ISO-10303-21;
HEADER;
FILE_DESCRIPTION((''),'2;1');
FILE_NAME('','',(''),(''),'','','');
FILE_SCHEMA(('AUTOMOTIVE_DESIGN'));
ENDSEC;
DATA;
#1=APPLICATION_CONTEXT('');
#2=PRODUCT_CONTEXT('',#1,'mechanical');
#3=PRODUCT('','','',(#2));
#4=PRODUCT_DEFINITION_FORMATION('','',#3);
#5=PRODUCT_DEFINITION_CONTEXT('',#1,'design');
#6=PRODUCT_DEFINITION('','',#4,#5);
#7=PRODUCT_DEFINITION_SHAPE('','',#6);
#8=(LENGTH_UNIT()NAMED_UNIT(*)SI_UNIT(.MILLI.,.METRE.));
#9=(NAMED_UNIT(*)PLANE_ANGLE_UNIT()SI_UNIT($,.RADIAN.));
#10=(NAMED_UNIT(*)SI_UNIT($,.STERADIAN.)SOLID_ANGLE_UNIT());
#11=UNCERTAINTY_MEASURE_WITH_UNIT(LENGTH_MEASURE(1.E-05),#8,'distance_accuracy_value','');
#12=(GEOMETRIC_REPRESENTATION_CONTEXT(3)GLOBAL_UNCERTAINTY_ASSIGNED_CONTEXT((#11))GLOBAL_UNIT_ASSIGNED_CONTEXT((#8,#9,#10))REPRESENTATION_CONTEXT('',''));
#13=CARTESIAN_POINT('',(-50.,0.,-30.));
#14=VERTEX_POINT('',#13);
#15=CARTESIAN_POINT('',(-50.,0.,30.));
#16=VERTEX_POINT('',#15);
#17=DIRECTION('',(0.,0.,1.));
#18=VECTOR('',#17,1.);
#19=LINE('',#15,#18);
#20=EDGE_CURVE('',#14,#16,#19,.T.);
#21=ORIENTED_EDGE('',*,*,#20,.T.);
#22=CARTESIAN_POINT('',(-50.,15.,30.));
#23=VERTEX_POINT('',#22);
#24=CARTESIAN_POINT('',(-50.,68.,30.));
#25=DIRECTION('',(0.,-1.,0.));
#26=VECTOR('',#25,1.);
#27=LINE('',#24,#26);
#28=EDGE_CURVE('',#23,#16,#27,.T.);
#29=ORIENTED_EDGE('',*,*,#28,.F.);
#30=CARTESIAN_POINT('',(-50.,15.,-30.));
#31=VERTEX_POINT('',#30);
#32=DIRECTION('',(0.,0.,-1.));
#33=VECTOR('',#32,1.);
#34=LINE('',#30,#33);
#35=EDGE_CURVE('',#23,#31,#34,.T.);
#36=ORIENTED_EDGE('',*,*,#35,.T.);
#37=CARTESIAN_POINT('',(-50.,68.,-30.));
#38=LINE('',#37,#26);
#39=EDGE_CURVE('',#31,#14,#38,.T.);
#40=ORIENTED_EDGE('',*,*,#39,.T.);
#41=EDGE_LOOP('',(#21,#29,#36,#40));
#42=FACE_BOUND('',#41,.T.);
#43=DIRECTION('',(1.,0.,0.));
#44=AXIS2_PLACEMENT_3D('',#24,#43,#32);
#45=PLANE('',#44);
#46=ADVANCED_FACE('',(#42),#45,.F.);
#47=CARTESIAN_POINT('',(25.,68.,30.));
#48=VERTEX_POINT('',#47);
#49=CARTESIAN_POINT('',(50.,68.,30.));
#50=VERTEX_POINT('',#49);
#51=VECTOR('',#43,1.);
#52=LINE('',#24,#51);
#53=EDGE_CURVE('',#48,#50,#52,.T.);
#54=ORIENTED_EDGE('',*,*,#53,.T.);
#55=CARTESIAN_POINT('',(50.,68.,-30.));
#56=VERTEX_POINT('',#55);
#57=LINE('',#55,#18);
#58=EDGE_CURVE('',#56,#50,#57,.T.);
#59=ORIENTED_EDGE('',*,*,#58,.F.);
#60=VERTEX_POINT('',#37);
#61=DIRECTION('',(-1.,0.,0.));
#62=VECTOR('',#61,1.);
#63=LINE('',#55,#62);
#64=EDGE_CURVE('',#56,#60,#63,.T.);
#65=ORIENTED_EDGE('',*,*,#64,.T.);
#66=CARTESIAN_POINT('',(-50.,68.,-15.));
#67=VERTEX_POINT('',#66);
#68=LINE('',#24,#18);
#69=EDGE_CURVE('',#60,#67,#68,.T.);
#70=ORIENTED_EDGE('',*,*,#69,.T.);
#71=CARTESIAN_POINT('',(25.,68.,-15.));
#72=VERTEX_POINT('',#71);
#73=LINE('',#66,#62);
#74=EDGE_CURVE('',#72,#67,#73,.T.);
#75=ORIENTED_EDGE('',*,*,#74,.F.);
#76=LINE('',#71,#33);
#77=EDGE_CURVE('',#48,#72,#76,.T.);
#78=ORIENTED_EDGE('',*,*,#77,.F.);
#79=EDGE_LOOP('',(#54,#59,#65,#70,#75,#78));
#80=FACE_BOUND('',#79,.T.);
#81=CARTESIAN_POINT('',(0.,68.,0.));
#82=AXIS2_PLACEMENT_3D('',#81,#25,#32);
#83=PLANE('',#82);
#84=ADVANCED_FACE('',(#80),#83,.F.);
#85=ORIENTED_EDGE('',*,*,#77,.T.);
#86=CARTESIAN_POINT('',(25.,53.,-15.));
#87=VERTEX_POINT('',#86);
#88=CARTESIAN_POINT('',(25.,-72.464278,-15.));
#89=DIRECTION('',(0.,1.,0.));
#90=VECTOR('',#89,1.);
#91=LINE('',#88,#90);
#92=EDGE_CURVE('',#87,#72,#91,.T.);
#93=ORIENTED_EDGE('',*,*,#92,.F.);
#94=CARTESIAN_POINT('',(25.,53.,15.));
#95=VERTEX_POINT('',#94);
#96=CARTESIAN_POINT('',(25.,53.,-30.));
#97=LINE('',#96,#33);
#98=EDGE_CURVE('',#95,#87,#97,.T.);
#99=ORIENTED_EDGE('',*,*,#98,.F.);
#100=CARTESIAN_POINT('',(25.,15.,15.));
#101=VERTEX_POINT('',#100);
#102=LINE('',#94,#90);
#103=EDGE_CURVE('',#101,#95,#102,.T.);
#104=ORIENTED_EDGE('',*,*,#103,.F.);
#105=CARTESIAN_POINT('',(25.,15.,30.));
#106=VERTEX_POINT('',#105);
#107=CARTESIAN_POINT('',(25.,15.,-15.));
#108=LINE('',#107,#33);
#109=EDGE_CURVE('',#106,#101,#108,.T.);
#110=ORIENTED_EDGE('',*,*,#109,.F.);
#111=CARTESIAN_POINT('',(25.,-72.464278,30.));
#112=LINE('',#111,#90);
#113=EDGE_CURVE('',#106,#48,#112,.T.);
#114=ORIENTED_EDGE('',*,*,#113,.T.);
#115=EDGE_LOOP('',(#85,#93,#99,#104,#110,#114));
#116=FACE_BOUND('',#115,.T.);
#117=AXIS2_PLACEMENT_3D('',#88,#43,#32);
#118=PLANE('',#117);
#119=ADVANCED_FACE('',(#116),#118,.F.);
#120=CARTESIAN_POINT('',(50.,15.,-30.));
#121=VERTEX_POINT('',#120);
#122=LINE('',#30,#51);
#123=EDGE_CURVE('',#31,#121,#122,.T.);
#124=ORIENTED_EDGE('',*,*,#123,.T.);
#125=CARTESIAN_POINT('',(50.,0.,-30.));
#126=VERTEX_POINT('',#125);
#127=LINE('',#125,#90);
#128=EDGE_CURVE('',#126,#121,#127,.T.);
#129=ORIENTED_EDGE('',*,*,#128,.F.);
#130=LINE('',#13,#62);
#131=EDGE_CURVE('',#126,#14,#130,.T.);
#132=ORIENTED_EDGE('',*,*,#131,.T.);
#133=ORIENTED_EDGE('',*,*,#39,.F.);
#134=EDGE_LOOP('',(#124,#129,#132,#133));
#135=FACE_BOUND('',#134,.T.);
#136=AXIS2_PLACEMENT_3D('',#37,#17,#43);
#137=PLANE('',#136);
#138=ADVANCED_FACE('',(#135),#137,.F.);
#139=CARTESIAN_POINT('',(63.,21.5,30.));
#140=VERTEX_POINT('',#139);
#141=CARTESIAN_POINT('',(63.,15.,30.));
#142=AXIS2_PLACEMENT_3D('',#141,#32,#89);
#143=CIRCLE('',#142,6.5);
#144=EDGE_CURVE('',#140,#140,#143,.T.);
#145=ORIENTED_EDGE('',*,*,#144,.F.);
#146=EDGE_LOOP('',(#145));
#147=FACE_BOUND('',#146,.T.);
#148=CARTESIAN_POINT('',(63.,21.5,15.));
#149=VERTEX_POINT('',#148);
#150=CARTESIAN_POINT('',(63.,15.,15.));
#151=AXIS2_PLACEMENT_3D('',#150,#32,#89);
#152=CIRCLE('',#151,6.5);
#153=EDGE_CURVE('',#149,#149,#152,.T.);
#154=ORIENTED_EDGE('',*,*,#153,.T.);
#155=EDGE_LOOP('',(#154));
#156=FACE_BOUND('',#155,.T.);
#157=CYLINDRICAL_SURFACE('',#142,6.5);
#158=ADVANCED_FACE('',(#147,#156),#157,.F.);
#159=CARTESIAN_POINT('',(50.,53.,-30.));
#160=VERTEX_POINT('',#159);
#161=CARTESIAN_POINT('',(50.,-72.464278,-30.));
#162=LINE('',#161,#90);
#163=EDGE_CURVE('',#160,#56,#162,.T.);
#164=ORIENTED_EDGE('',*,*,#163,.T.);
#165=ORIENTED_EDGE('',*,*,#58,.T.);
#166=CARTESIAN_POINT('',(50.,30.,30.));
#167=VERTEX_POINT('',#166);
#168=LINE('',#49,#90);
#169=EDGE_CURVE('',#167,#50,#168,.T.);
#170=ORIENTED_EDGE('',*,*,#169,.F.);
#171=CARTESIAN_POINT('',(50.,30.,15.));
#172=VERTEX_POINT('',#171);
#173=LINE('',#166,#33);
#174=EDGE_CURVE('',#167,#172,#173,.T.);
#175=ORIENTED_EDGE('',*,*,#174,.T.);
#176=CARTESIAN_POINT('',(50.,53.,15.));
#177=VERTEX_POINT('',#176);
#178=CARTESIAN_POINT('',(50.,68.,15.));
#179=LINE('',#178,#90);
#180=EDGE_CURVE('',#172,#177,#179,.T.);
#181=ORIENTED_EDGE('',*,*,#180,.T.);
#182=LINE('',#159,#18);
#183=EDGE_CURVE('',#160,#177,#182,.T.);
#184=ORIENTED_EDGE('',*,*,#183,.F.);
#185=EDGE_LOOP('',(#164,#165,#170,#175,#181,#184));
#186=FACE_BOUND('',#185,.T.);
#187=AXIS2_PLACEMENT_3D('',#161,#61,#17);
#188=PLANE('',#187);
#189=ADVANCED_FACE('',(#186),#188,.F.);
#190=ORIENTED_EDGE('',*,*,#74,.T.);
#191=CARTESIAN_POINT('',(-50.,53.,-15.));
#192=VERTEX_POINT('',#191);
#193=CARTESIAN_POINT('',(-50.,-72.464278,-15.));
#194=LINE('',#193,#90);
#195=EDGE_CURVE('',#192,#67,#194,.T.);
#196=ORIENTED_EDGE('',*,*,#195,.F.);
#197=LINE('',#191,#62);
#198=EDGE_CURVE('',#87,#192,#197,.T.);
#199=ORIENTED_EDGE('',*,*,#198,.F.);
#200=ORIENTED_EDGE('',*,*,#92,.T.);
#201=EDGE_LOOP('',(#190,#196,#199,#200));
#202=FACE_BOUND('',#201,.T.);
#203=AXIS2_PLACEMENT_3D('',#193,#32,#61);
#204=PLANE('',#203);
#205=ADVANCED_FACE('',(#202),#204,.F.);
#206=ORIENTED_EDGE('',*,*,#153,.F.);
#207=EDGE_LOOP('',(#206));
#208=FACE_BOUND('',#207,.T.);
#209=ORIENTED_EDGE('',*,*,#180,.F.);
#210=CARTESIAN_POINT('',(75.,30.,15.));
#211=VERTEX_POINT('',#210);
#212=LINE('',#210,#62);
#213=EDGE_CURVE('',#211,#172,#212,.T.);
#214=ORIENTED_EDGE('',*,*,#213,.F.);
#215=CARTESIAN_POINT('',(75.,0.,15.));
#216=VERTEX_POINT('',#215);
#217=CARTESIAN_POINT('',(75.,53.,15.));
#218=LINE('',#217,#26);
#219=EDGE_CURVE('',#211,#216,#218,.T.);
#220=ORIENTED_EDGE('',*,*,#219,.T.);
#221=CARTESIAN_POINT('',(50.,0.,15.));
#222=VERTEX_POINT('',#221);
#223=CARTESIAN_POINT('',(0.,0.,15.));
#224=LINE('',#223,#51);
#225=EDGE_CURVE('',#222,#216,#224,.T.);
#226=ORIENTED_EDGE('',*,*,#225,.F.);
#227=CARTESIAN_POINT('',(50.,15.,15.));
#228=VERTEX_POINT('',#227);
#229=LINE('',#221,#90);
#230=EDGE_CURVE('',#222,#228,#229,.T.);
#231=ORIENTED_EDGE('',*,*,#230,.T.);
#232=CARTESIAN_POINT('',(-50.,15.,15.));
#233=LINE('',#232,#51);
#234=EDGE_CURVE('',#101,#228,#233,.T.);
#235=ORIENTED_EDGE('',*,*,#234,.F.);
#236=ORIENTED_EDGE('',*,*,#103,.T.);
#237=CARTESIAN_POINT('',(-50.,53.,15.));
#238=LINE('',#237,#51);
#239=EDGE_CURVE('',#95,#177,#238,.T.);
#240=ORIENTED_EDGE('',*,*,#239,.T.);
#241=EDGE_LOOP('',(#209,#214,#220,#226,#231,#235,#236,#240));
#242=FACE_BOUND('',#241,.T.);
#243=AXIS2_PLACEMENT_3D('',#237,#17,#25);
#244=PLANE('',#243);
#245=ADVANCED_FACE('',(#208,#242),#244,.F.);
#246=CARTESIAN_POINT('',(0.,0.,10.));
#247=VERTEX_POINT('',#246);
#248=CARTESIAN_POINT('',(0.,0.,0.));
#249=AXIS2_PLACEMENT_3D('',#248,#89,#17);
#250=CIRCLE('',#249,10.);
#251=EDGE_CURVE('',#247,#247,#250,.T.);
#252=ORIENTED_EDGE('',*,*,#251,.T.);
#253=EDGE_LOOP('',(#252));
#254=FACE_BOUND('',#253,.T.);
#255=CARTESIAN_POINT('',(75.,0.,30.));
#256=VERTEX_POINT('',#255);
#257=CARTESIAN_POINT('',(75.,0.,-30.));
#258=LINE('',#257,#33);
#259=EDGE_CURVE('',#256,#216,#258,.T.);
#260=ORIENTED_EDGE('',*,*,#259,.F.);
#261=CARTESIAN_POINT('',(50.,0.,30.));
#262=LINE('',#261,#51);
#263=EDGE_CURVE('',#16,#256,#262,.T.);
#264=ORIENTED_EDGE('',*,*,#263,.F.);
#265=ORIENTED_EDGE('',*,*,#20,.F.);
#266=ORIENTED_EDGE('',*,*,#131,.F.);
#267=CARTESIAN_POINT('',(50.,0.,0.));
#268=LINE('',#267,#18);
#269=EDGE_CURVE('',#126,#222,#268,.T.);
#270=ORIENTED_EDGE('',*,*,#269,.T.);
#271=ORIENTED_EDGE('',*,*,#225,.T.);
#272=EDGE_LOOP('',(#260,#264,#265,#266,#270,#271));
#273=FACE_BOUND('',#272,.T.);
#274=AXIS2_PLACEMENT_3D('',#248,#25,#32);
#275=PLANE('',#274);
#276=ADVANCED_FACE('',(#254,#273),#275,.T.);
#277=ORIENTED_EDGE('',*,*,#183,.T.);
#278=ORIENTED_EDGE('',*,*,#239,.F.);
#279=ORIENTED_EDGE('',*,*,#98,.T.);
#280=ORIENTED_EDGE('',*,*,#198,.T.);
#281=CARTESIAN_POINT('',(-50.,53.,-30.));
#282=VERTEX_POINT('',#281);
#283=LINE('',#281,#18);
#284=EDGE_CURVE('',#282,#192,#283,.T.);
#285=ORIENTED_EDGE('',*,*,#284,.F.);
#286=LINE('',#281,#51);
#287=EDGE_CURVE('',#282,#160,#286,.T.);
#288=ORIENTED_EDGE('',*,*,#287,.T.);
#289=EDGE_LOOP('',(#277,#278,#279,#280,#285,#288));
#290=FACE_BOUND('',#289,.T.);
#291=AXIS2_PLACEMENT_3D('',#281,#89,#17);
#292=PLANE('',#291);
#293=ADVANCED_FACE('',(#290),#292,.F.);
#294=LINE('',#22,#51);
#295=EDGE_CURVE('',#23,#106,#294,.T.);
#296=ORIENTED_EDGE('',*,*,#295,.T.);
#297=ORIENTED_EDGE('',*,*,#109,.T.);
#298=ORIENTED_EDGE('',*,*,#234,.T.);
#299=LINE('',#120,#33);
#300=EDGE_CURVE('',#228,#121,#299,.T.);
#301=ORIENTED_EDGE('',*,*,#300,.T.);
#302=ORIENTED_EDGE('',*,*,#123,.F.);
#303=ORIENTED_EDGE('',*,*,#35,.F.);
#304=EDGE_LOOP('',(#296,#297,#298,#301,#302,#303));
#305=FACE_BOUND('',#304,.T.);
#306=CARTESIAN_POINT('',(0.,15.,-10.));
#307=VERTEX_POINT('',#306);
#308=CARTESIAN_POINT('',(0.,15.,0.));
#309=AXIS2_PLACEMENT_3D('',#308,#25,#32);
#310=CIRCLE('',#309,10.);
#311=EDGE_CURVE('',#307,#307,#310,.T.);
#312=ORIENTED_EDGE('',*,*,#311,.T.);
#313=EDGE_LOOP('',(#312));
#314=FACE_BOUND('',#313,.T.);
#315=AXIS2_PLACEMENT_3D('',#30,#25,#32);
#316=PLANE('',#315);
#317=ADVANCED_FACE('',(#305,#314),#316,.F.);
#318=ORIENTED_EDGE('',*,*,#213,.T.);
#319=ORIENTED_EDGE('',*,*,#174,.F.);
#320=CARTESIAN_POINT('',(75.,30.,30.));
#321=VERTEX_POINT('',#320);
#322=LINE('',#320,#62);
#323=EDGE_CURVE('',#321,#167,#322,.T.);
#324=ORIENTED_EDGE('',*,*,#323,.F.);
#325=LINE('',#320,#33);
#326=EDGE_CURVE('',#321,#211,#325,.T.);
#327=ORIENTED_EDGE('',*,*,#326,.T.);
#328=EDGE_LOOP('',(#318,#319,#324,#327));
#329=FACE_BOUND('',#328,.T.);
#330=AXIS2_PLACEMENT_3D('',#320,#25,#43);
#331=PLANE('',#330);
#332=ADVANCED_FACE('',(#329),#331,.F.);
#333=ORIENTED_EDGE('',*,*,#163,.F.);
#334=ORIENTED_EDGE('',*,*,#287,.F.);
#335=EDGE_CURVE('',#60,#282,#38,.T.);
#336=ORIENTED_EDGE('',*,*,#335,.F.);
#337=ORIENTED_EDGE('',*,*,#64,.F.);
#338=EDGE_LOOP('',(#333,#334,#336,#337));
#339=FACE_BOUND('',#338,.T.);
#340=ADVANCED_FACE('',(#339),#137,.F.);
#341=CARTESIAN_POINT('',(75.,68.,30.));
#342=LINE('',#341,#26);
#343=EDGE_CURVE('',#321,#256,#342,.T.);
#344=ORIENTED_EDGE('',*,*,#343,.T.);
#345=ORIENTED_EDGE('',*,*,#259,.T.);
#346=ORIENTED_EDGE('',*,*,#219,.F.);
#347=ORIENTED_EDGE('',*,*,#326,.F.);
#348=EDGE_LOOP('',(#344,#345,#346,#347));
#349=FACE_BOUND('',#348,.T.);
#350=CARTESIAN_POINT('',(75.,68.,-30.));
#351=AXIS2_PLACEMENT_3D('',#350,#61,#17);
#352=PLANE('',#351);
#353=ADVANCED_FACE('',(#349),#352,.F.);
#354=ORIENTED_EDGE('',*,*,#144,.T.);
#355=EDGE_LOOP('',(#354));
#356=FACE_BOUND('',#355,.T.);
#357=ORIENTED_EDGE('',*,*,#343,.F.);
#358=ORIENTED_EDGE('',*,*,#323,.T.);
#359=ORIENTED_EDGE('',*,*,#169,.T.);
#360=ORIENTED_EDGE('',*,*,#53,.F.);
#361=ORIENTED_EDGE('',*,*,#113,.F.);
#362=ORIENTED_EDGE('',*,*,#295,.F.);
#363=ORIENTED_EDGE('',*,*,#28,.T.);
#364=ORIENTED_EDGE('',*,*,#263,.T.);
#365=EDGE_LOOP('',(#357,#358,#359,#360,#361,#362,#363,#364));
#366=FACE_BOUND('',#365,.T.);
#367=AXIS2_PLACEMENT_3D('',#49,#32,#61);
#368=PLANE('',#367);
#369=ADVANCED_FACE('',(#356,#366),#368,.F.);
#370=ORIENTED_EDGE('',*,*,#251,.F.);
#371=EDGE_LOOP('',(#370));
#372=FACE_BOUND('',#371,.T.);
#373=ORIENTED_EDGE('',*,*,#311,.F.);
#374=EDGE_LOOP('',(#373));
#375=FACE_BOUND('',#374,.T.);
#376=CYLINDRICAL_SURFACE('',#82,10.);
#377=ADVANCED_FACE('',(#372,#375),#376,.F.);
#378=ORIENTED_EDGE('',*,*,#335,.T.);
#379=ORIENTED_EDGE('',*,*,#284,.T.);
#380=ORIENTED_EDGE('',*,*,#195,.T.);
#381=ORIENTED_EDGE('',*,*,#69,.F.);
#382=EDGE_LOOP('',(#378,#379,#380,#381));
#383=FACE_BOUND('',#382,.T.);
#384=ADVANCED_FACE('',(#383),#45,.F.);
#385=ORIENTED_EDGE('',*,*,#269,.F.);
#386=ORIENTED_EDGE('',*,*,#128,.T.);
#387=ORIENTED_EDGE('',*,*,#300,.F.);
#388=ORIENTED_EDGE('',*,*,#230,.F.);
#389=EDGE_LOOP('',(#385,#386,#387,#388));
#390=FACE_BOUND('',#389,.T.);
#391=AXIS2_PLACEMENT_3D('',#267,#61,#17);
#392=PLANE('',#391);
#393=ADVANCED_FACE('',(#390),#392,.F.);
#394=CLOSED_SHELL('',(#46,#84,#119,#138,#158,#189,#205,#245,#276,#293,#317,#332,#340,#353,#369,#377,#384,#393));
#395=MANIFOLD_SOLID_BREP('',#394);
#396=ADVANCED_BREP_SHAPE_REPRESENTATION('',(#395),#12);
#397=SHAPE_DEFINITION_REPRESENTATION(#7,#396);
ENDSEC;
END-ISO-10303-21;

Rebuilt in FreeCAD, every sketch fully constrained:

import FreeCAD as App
import Part
import Sketcher

V = App.Vector
Q = App.Units.Quantity

doc = App.newDocument("Part")
body = doc.addObject("PartDesign::Body", "Body")

# Sketch on XZ plane
sketch1 = body.newObject("Sketcher::SketchObject", "Sketch")
sketch1.AttachmentSupport = (doc.getObject("XZ_Plane"), [""])
sketch1.MapMode = "FlatFace"
sketch1.addGeometry([
    Part.LineSegment(V(-50, 30, 0), V(75, 30, 0)),  # 0
    Part.LineSegment(V(75, 30, 0), V(75, -30, 0)),  # 1
    Part.LineSegment(V(75, -30, 0), V(-50, -30, 0)),  # 2
    Part.LineSegment(V(-50, -30, 0), V(-50, 30, 0)),  # 3
    Part.Circle(V(0, 0, 0), V(0, 0, 1), 10),  # 4
], False)
sketch1.addConstraint([
    Sketcher.Constraint("Coincident", 0, 2, 1, 1),
    Sketcher.Constraint("Coincident", 1, 2, 2, 1),
    Sketcher.Constraint("Coincident", 2, 2, 3, 1),
    Sketcher.Constraint("Coincident", 3, 2, 0, 1),
    Sketcher.Constraint("Horizontal", 0),
    Sketcher.Constraint("Vertical", 1),
    Sketcher.Constraint("Horizontal", 2),
    Sketcher.Constraint("Vertical", 3),
    Sketcher.Constraint("Coincident", 4, 3, -1, 1),
    Sketcher.Constraint("Diameter", 4, Q("20 mm")),
    Sketcher.Constraint("DistanceX", 0, 1, 0, 2, Q("125 mm")),
    Sketcher.Constraint("DistanceY", 1, 2, 1, 1, Q("60 mm")),
    Sketcher.Constraint("DistanceX", -1, 1, 0, 2, Q("75 mm")),
    Sketcher.Constraint("DistanceY", -1, 1, 0, 2, Q("30 mm")),
])
pad1 = body.newObject("PartDesign::Pad", "Pad")
pad1.Profile = sketch1
pad1.Length = 68
pad1.Reversed = True

# Sketch on YZ plane
sketch2 = body.newObject("Sketcher::SketchObject", "Sketch001")
sketch2.AttachmentSupport = (doc.getObject("YZ_Plane"), [""])
sketch2.MapMode = "FlatFace"
sketch2.AttachmentOffset = App.Placement(V(0, 0, 75), App.Rotation())
sketch2.addGeometry([
    Part.LineSegment(V(53, 15, 0), V(15, 15, 0)),
    Part.LineSegment(V(15, 15, 0), V(15, -30, 0)),
    Part.LineSegment(V(15, -30, 0), V(53, -30, 0)),
    Part.LineSegment(V(53, -30, 0), V(53, 15, 0)),
], False)
sketch2.addConstraint([
    Sketcher.Constraint("Coincident", 0, 2, 1, 1),
    Sketcher.Constraint("Coincident", 1, 2, 2, 1),
    Sketcher.Constraint("Coincident", 2, 2, 3, 1),
    Sketcher.Constraint("Coincident", 3, 2, 0, 1),
    Sketcher.Constraint("Horizontal", 0),
    Sketcher.Constraint("Vertical", 1),
    Sketcher.Constraint("Horizontal", 2),
    Sketcher.Constraint("Vertical", 3),
    Sketcher.Constraint("DistanceX", 0, 2, 0, 1, Q("38 mm")),
    Sketcher.Constraint("DistanceY", 1, 2, 1, 1, Q("45 mm")),
    Sketcher.Constraint("DistanceX", -1, 1, 0, 2, Q("15 mm")),
    Sketcher.Constraint("DistanceY", -1, 1, 0, 2, Q("15 mm")),
])
pocket1 = body.newObject("PartDesign::Pocket", "Pocket")
pocket1.Profile = sketch2
pocket1.Type = "ThroughAll"

# Sketch on XZ plane
sketch3 = body.newObject("Sketcher::SketchObject", "Sketch002")
sketch3.AttachmentSupport = (doc.getObject("XZ_Plane"), [""])
sketch3.MapMode = "FlatFace"
sketch3.AttachmentOffset = App.Placement(V(0, 0, -68), App.Rotation())
sketch3.addGeometry([
    Part.LineSegment(V(-50, -15, 0), V(-50, 30, 0)),  # 0
    Part.LineSegment(V(-50, 30, 0), V(25, 30, 0)),  # 1
    Part.LineSegment(V(25, 30, 0), V(25, -15, 0)),  # 2
    Part.LineSegment(V(25, -15, 0), V(-50, -15, 0)),  # 3
    Part.LineSegment(V(50, -30, 0), V(50, 15, 0)),  # 4
    Part.LineSegment(V(50, 15, 0), V(75, 15, 0)),  # 5
    Part.LineSegment(V(75, 15, 0), V(75, -30, 0)),  # 6
    Part.LineSegment(V(75, -30, 0), V(50, -30, 0)),  # 7
], False)
sketch3.addConstraint([
    Sketcher.Constraint("Coincident", 0, 2, 1, 1),
    Sketcher.Constraint("Coincident", 1, 2, 2, 1),
    Sketcher.Constraint("Coincident", 2, 2, 3, 1),
    Sketcher.Constraint("Coincident", 3, 2, 0, 1),
    Sketcher.Constraint("Coincident", 4, 2, 5, 1),
    Sketcher.Constraint("Coincident", 5, 2, 6, 1),
    Sketcher.Constraint("Coincident", 6, 2, 7, 1),
    Sketcher.Constraint("Coincident", 7, 2, 4, 1),
    Sketcher.Constraint("Vertical", 0),
    Sketcher.Constraint("Horizontal", 1),
    Sketcher.Constraint("Vertical", 2),
    Sketcher.Constraint("Horizontal", 3),
    Sketcher.Constraint("Vertical", 4),
    Sketcher.Constraint("Horizontal", 5),
    Sketcher.Constraint("Vertical", 6),
    Sketcher.Constraint("Horizontal", 7),
    Sketcher.Constraint("Symmetric", 3, 2, 4, 2, -1, 1),
    Sketcher.Constraint("Equal", 2, 4),
    Sketcher.Constraint("DistanceX", 1, 1, 1, 2, Q("75 mm")),
    Sketcher.Constraint("DistanceX", 5, 1, 5, 2, Q("25 mm")),
    Sketcher.Constraint("DistanceY", 0, 1, 0, 2, Q("45 mm")),
    Sketcher.Constraint("DistanceX", 0, 2, -1, 1, Q("50 mm")),
    Sketcher.Constraint("DistanceY", -1, 1, 0, 2, Q("30 mm")),
])
pocket2 = body.newObject("PartDesign::Pocket", "Pocket001")
pocket2.Profile = sketch3
pocket2.Length = 53
pocket2.Reversed = True

# Sketch on XZ plane
sketch4 = body.newObject("Sketcher::SketchObject", "Sketch003")
sketch4.AttachmentSupport = (doc.getObject("XZ_Plane"), [""])
sketch4.MapMode = "FlatFace"
sketch4.AttachmentOffset = App.Placement(V(0, 0, -68), App.Rotation())
sketch4.addGeometry([
    Part.LineSegment(V(50, -30, 0), V(50, 15, 0)),
    Part.LineSegment(V(50, 15, 0), V(75, 15, 0)),
    Part.LineSegment(V(75, 15, 0), V(75, -30, 0)),
    Part.LineSegment(V(75, -30, 0), V(50, -30, 0)),
], False)
sketch4.addConstraint([
    Sketcher.Constraint("Coincident", 0, 2, 1, 1),
    Sketcher.Constraint("Coincident", 1, 2, 2, 1),
    Sketcher.Constraint("Coincident", 2, 2, 3, 1),
    Sketcher.Constraint("Coincident", 3, 2, 0, 1),
    Sketcher.Constraint("Vertical", 0),
    Sketcher.Constraint("Horizontal", 1),
    Sketcher.Constraint("Vertical", 2),
    Sketcher.Constraint("Horizontal", 3),
    Sketcher.Constraint("DistanceX", 1, 1, 1, 2, Q("25 mm")),
    Sketcher.Constraint("DistanceY", 0, 1, 0, 2, Q("45 mm")),
    Sketcher.Constraint("DistanceX", -1, 1, 0, 2, Q("50 mm")),
    Sketcher.Constraint("DistanceY", -1, 1, 0, 2, Q("15 mm")),
])
pocket3 = body.newObject("PartDesign::Pocket", "Pocket002")
pocket3.Profile = sketch4
pocket3.Type = "ThroughAll"
pocket3.Reversed = True

# Sketch on XY plane
sketch5 = body.newObject("Sketcher::SketchObject", "Sketch004")
sketch5.AttachmentSupport = (doc.getObject("XY_Plane"), [""])
sketch5.MapMode = "FlatFace"
sketch5.AttachmentOffset = App.Placement(V(0, 0, 15), App.Rotation())
sketch5.addGeometry([
    Part.Circle(V(63, 15, 0), V(0, 0, 1), 6),  # 0
    Part.LineSegment(V(75, 68, 0), V(75, 30, 0)),  # 1
    Part.LineSegment(V(75, 30, 0), V(50, 30, 0)),  # 2
    Part.LineSegment(V(50, 30, 0), V(50, 68, 0)),  # 3
    Part.LineSegment(V(50, 68, 0), V(75, 68, 0)),  # 4
], False)
sketch5.addConstraint([
    Sketcher.Constraint("Coincident", 1, 2, 2, 1),
    Sketcher.Constraint("Coincident", 2, 2, 3, 1),
    Sketcher.Constraint("Coincident", 3, 2, 4, 1),
    Sketcher.Constraint("Coincident", 4, 2, 1, 1),
    Sketcher.Constraint("Vertical", 1),
    Sketcher.Constraint("Horizontal", 2),
    Sketcher.Constraint("Vertical", 3),
    Sketcher.Constraint("Horizontal", 4),
    Sketcher.Constraint("Diameter", 0, Q("13 mm")),
    Sketcher.Constraint("DistanceX", 2, 2, 2, 1, Q("25 mm")),
    Sketcher.Constraint("DistanceY", 1, 2, 1, 1, Q("38 mm")),
    Sketcher.Constraint("DistanceX", -1, 1, 0, 3, Q("63 mm")),
    Sketcher.Constraint("DistanceY", -1, 1, 0, 3, Q("15 mm")),
    Sketcher.Constraint("DistanceX", -1, 1, 1, 2, Q("75 mm")),
    Sketcher.Constraint("DistanceY", -1, 1, 1, 2, Q("30 mm")),
])
pocket4 = body.newObject("PartDesign::Pocket", "Pocket003")
pocket4.Profile = sketch5
pocket4.Type = "ThroughAll"
pocket4.Reversed = True

doc.recompute()
